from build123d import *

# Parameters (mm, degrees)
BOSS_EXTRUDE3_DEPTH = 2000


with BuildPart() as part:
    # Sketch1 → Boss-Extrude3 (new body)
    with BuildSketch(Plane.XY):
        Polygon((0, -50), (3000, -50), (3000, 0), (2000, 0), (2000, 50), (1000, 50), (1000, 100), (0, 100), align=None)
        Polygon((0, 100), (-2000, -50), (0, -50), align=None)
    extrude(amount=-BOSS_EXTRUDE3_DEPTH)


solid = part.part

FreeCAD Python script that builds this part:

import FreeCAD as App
import Part
import Sketcher
Q = App.Units.Quantity

doc = App.newDocument("Part")
body = doc.addObject("PartDesign::Body", "Body")

# Sketch on XY plane
sketch1 = doc.addObject("Sketcher::SketchObject", "Sketch")
body.addObject(sketch1)
sketch1.AttachmentSupport = (doc.XY_Plane, [""])
sketch1.MapMode = "FlatFace"
sketch1.addGeometry([
    Part.LineSegment(App.Vector(3000, -50, 0), App.Vector(3000, 0, 0)),  # 0
    Part.LineSegment(App.Vector(3000, 0, 0), App.Vector(2000, 0, 0)),  # 1
    Part.LineSegment(App.Vector(2000, 0, 0), App.Vector(2000, 50, 0)),  # 2
    Part.LineSegment(App.Vector(2000, 50, 0), App.Vector(1000, 50, 0)),  # 3
    Part.LineSegment(App.Vector(1000, 50, 0), App.Vector(1000, 100, 0)),  # 4
    Part.LineSegment(App.Vector(1000, 100, 0), App.Vector(0, 100, 0)),  # 5
    Part.LineSegment(App.Vector(0, 100, 0), App.Vector(-2000, -50, 0)),  # 6
    Part.LineSegment(App.Vector(-2000, -50, 0), App.Vector(3000, -50, 0)),  # 7
], False)
sketch1.addConstraint([
    Sketcher.Constraint("Coincident", 0, 2, 1, 1),
    Sketcher.Constraint("Coincident", 1, 2, 2, 1),
    Sketcher.Constraint("Coincident", 2, 2, 3, 1),
    Sketcher.Constraint("Coincident", 3, 2, 4, 1),
    Sketcher.Constraint("Coincident", 4, 2, 5, 1),
    Sketcher.Constraint("Coincident", 5, 2, 6, 1),
    Sketcher.Constraint("Coincident", 6, 2, 7, 1),
    Sketcher.Constraint("Coincident", 7, 2, 0, 1),
    Sketcher.Constraint("Vertical", 0),
    Sketcher.Constraint("Horizontal", 1),
    Sketcher.Constraint("Vertical", 2),
    Sketcher.Constraint("Horizontal", 3),
    Sketcher.Constraint("Vertical", 4),
    Sketcher.Constraint("Horizontal", 5),
    Sketcher.Constraint("Horizontal", 7),
    Sketcher.Constraint("Symmetric", 2, 2, 6, 2, -1, 1),
    Sketcher.Constraint("PointOnObject", 0, 2, -1),
    Sketcher.Constraint("PointOnObject", 5, 2, -2),
    Sketcher.Constraint("Equal", 1, 3),
    Sketcher.Constraint("Equal", 3, 5),
    Sketcher.Constraint("Equal", 2, 4),
    Sketcher.Constraint("DistanceX", 1, 2, 1, 1, Q("1000 mm")),
    Sketcher.Constraint("DistanceY", 0, 1, 0, 2, Q("50 mm")),
])
pad1 = doc.addObject("PartDesign::Pad", "Pad")
body.addObject(pad1)
pad1.Profile = sketch1
pad1.Length = 2000
pad1.Reversed = True

doc.recompute()
